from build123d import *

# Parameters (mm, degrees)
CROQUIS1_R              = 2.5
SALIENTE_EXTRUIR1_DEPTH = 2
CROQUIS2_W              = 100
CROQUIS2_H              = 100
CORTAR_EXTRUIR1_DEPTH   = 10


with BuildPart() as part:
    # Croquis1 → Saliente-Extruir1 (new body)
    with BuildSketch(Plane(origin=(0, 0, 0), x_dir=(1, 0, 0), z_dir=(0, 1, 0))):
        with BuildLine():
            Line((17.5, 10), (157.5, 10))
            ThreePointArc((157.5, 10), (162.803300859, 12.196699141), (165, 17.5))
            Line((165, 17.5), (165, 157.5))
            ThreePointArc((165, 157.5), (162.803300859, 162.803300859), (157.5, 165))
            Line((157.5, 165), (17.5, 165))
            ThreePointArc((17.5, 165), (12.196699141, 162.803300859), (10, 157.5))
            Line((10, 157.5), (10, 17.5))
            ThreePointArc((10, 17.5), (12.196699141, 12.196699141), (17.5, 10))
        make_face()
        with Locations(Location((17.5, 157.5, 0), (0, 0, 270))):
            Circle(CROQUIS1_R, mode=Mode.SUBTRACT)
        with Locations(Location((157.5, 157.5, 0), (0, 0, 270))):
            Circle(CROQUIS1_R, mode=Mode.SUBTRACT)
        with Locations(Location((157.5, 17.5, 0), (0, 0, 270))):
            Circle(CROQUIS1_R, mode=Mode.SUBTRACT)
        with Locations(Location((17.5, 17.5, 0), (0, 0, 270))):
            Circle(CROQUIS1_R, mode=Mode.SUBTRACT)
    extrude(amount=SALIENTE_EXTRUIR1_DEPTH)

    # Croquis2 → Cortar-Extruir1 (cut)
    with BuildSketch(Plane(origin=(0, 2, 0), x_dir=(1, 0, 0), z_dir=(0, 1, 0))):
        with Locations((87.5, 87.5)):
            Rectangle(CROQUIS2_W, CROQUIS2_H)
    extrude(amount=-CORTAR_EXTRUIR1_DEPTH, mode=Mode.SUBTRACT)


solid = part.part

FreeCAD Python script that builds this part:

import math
import FreeCAD as App
import Part
import Sketcher
from FreeCAD import Vector
Q = App.Units.Quantity


def add_polygon(sketch, points):
    """Adds a closed chain of lines whose ends are joined by coincident constraints."""
    first, n = sketch.GeometryCount, len(points)
    for a, b in zip(points, points[1:] + points[:1]):
        sketch.addGeometry(Part.LineSegment(App.Vector(*a, 0), App.Vector(*b, 0)), False)
    for i in range(n):
        sketch.addConstraint(Sketcher.Constraint("Coincident", first + i, 2, first + (i + 1) % n, 1))

doc = App.newDocument("Part")
body = doc.addObject("PartDesign::Body", "Body")

# Sketch on XZ plane
sketch1 = body.newObject("Sketcher::SketchObject", "Sketch")
sketch1.AttachmentSupport = (doc.getObject("XZ_Plane"), [""])
sketch1.MapMode = "FlatFace"
sketch1.addGeometry(Part.LineSegment(Vector(17.5, -10, 0), Vector(157.5, -10, 0)), False)
sketch1.addGeometry(Part.ArcOfCircle(Part.Circle(Vector(157.5, -17.5, 0), Vector(0, 0, 1), 7.5), math.radians(0), math.radians(90)), False)
sketch1.addGeometry(Part.LineSegment(Vector(165, -17.5, 0), Vector(165, -157.5, 0)), False)
sketch1.addGeometry(Part.ArcOfCircle(Part.Circle(Vector(157.5, -157.5, 0), Vector(0, 0, 1), 7.5), math.radians(-90), math.radians(0)), False)
sketch1.addGeometry(Part.LineSegment(Vector(157.5, -165, 0), Vector(17.5, -165, 0)), False)
sketch1.addGeometry(Part.ArcOfCircle(Part.Circle(Vector(17.5, -157.5, 0), Vector(0, 0, 1), 7.5), math.radians(180), math.radians(270)), False)
sketch1.addGeometry(Part.LineSegment(Vector(10, -157.5, 0), Vector(10, -17.5, 0)), False)
sketch1.addGeometry(Part.ArcOfCircle(Part.Circle(Vector(17.5, -17.5, 0), Vector(0, 0, 1), 7.5), math.radians(90), math.radians(180)), False)
sketch1.addGeometry(Part.Circle(Vector(17.5, -17.5, 0), Vector(0, 0, 1), 2.5), False)
sketch1.addGeometry(Part.Circle(Vector(157.5, -17.5, 0), Vector(0, 0, 1), 2.5), False)
sketch1.addGeometry(Part.Circle(Vector(17.5, -157.5, 0), Vector(0, 0, 1), 2.5), False)
sketch1.addGeometry(Part.Circle(Vector(157.5, -157.5, 0), Vector(0, 0, 1), 2.5), False)
sketch1.addConstraint(Sketcher.Constraint("Tangent", 0, 2, 1, 2))
sketch1.addConstraint(Sketcher.Constraint("Tangent", 1, 1, 2, 1))
sketch1.addConstraint(Sketcher.Constraint("Tangent", 2, 2, 3, 2))
sketch1.addConstraint(Sketcher.Constraint("Tangent", 3, 1, 4, 1))
sketch1.addConstraint(Sketcher.Constraint("Tangent", 4, 2, 5, 2))
sketch1.addConstraint(Sketcher.Constraint("Tangent", 5, 1, 6, 1))
sketch1.addConstraint(Sketcher.Constraint("Tangent", 6, 2, 7, 2))
sketch1.addConstraint(Sketcher.Constraint("Tangent", 7, 1, 0, 1))
sketch1.addConstraint(Sketcher.Constraint("Horizontal", 0))
sketch1.addConstraint(Sketcher.Constraint("Vertical", 2))
sketch1.addConstraint(Sketcher.Constraint("Horizontal", 4))
sketch1.addConstraint(Sketcher.Constraint("Vertical", 6))
sketch1.addConstraint(Sketcher.Constraint("Coincident", 8, 3, 7, 3))
sketch1.addConstraint(Sketcher.Constraint("Coincident", 9, 3, 1, 3))
sketch1.addConstraint(Sketcher.Constraint("Coincident", 10, 3, 5, 3))
sketch1.addConstraint(Sketcher.Constraint("Coincident", 11, 3, 3, 3))
sketch1.addConstraint(Sketcher.Constraint("Equal", 1, 3))
sketch1.addConstraint(Sketcher.Constraint("Equal", 3, 5))
sketch1.addConstraint(Sketcher.Constraint("Equal", 5, 7))
sketch1.addConstraint(Sketcher.Constraint("Equal", 8, 9))
sketch1.addConstraint(Sketcher.Constraint("Equal", 9, 10))
sketch1.addConstraint(Sketcher.Constraint("Equal", 10, 11))
sketch1.addConstraint(Sketcher.Constraint("Equal", 4, 2))
sketch1.addConstraint(Sketcher.Constraint("Diameter", 8, Q("5 mm")))
sketch1.addConstraint(Sketcher.Constraint("Radius", 1, Q("7.5 mm")))
sketch1.addConstraint(Sketcher.Constraint("DistanceX", 0, 1, 0, 2, Q("140 mm")))
sketch1.addConstraint(Sketcher.Constraint("DistanceY", 0, 2, -1, 1, Q("10 mm")))
sketch1.addConstraint(Sketcher.Constraint("DistanceX", -1, 1, 1, 1, Q("165 mm")))
pad1 = body.newObject("PartDesign::Pad", "Pad")
pad1.Profile = sketch1
pad1.Length = 2
pad1.Reversed = True

# Sketch on XZ plane
sketch2 = body.newObject("Sketcher::SketchObject", "Sketch001")
sketch2.AttachmentSupport = (doc.getObject("XZ_Plane"), [""])
sketch2.MapMode = "FlatFace"
sketch2.AttachmentOffset = App.Placement(Vector(0, 0, -2), App.Rotation())
add_polygon(sketch2, [(37.5, -137.5), (37.5, -37.5), (137.5, -37.5), (137.5, -137.5)])  # lines 0-3
sketch2.addConstraint(Sketcher.Constraint("Vertical", 0))
sketch2.addConstraint(Sketcher.Constraint("Horizontal", 1))
sketch2.addConstraint(Sketcher.Constraint("Vertical", 2))
sketch2.addConstraint(Sketcher.Constraint("Horizontal", 3))
sketch2.addConstraint(Sketcher.Constraint("Equal", 3, 0))
sketch2.addConstraint(Sketcher.Constraint("DistanceX", 1, 1, 1, 2, Q("100 mm")))
sketch2.addConstraint(Sketcher.Constraint("DistanceX", -1, 1, 0, 2, Q("37.5 mm")))
sketch2.addConstraint(Sketcher.Constraint("DistanceY", 0, 2, -1, 1, Q("37.5 mm")))
pocket1 = body.newObject("PartDesign::Pocket", "Pocket")
pocket1.Profile = sketch2
pocket1.Length = 10
pocket1.Reversed = True

doc.recompute()
